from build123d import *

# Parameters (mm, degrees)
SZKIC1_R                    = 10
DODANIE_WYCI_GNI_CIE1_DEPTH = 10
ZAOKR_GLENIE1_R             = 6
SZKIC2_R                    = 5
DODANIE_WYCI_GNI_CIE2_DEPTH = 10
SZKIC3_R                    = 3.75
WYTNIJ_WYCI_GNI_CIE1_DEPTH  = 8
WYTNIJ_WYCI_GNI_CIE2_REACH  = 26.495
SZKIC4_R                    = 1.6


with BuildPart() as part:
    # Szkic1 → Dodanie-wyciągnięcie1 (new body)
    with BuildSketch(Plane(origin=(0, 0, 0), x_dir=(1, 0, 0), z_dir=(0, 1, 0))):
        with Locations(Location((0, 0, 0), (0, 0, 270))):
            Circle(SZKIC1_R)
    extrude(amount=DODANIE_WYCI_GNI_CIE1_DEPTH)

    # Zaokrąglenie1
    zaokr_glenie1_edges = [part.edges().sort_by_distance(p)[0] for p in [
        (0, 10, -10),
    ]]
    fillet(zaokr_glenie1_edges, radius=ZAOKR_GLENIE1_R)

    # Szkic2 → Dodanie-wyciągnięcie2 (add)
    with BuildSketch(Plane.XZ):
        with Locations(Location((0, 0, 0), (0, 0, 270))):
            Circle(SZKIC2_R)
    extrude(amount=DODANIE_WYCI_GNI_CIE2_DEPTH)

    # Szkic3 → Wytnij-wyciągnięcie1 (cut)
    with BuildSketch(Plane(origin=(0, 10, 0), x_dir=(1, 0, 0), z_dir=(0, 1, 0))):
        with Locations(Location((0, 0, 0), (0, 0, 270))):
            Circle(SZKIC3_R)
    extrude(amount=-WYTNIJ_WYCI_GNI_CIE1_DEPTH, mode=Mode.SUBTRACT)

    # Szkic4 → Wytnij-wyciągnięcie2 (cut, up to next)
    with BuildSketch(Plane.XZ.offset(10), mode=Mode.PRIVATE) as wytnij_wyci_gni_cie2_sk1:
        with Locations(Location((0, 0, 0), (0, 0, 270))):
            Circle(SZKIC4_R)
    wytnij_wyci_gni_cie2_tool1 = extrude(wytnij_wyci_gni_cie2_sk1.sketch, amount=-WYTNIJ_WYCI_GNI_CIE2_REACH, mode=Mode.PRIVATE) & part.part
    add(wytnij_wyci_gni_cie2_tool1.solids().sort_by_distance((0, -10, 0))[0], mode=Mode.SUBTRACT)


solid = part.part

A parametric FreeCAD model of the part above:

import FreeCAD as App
import Part
import Sketcher
from FreeCAD import Vector


def edges_at(feature, points):
    """Names of the edges that pass closest to the given points."""
    edges = feature.Shape.Edges
    near = lambda p: min(range(len(edges)), key=lambda i: edges[i].distToShape(Part.Vertex(*p))[0])
    return sorted({f"Edge{near(p) + 1}" for p in points})

doc = App.newDocument("Part")
body = doc.addObject("PartDesign::Body", "Body")

sketch1 = body.newObject("Sketcher::SketchObject", "Sketch")
sketch1.AttachmentSupport = (doc.getObject("XZ_Plane"), [""])
sketch1.MapMode = "FlatFace"
sketch1.addGeometry(Part.Circle(Vector(0, 0, 0), Vector(0, 0, 1), 10), False)
sketch1.addConstraint(Sketcher.Constraint("Coincident", 0, 3, -1, 1))
sketch1.addConstraint(Sketcher.Constraint("Diameter", 0, 20.0))
pad1 = body.newObject("PartDesign::Pad", "Pad")
pad1.Profile = sketch1
pad1.Length = 10
pad1.Reversed = True
doc.recompute()

fillet = body.newObject("PartDesign::Fillet", "Fillet")
fillet.Base = (pad1, edges_at(pad1, [(0, 10, -10)]))
fillet.Radius = 6

sketch2 = body.newObject("Sketcher::SketchObject", "Sketch001")
sketch2.AttachmentSupport = (doc.getObject("XZ_Plane"), [""])
sketch2.MapMode = "FlatFace"
sketch2.addGeometry(Part.Circle(Vector(0, 0, 0), Vector(0, 0, 1), 5), False)
sketch2.addConstraint(Sketcher.Constraint("Coincident", 0, 3, -1, 1))
sketch2.addConstraint(Sketcher.Constraint("Diameter", 0, 10.0))
pad2 = body.newObject("PartDesign::Pad", "Pad001")
pad2.Profile = sketch2
pad2.Length = 10

sketch3 = body.newObject("Sketcher::SketchObject", "Sketch002")
sketch3.AttachmentSupport = (doc.getObject("XZ_Plane"), [""])
sketch3.MapMode = "FlatFace"
sketch3.AttachmentOffset = App.Placement(Vector(0, 0, -10), App.Rotation())
sketch3.addGeometry(Part.Circle(Vector(0, 0, 0), Vector(0, 0, 1), 3.8), False)
sketch3.addConstraint(Sketcher.Constraint("Coincident", 0, 3, -1, 1))
sketch3.addConstraint(Sketcher.Constraint("Diameter", 0, 7.5))
pocket1 = body.newObject("PartDesign::Pocket", "Pocket")
pocket1.Profile = sketch3
pocket1.Length = 8
pocket1.Reversed = True

sketch4 = body.newObject("Sketcher::SketchObject", "Sketch003")
sketch4.AttachmentSupport = (doc.getObject("XZ_Plane"), [""])
sketch4.MapMode = "FlatFace"
sketch4.AttachmentOffset = App.Placement(Vector(0, 0, 10), App.Rotation())
sketch4.addGeometry(Part.Circle(Vector(0, 0, 0), Vector(0, 0, 1), 1.6), False)
sketch4.addConstraint(Sketcher.Constraint("Coincident", 0, 3, -1, 1))
sketch4.addConstraint(Sketcher.Constraint("Diameter", 0, 3.2))
pocket2 = body.newObject("PartDesign::Pocket", "Pocket001")
pocket2.Profile = sketch4
pocket2.Type = "UpToFirst"

doc.recompute()
